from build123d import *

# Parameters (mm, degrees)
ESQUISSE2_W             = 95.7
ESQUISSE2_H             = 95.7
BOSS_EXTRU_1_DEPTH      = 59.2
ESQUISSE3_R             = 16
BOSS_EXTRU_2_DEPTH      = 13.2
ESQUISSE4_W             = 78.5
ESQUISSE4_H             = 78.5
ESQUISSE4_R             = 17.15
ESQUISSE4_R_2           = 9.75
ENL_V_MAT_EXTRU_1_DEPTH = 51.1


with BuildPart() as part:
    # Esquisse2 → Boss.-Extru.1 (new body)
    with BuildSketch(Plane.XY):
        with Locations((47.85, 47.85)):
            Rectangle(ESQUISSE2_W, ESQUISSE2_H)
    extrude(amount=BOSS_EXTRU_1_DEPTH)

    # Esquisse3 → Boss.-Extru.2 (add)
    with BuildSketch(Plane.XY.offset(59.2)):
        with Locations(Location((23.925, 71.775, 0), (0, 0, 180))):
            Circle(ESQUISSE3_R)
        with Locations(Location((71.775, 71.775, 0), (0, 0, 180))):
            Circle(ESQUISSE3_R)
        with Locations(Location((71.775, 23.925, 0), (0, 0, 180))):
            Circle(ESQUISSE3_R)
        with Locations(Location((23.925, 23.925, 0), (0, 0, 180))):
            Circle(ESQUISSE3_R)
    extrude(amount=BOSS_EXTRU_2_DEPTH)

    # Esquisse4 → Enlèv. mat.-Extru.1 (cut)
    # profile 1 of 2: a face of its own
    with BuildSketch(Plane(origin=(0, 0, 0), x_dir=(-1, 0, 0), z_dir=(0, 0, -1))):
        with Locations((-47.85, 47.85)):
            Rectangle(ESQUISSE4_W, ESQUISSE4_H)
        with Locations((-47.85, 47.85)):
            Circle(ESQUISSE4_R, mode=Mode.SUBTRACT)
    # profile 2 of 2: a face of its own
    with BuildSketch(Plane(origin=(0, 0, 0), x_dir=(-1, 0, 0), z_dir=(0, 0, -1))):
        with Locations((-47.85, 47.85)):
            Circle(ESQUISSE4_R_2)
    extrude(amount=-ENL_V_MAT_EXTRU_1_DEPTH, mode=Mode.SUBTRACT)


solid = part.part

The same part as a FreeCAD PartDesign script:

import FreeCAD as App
import Part
import Sketcher

V = App.Vector

doc = App.newDocument("Part")
body = doc.addObject("PartDesign::Body", "Body")

sketch1 = doc.addObject("Sketcher::SketchObject", "Sketch")
body.addObject(sketch1)
sketch1.AttachmentSupport = (doc.XY_Plane, [""])
sketch1.MapMode = "FlatFace"
sketch1.addGeometry(Part.LineSegment(V(0, 96, 0), V(0, 0, 0)), False)
sketch1.addGeometry(Part.LineSegment(V(0, 0, 0), V(96, 0, 0)), False)
sketch1.addGeometry(Part.LineSegment(V(96, 0, 0), V(96, 96, 0)), False)
sketch1.addGeometry(Part.LineSegment(V(96, 96, 0), V(0, 96, 0)), False)
sketch1.addConstraint(Sketcher.Constraint("Coincident", 0, 2, 1, 1))
sketch1.addConstraint(Sketcher.Constraint("Coincident", 1, 2, 2, 1))
sketch1.addConstraint(Sketcher.Constraint("Coincident", 2, 2, 3, 1))
sketch1.addConstraint(Sketcher.Constraint("Coincident", 3, 2, 0, 1))
sketch1.addConstraint(Sketcher.Constraint("Vertical", 0))
sketch1.addConstraint(Sketcher.Constraint("Horizontal", 1))
sketch1.addConstraint(Sketcher.Constraint("Vertical", 2))
sketch1.addConstraint(Sketcher.Constraint("Horizontal", 3))
sketch1.addConstraint(Sketcher.Constraint("Coincident", 0, 2, -1, 1))
sketch1.addConstraint(Sketcher.Constraint("Equal", 3, 0))
sketch1.addConstraint(Sketcher.Constraint("DistanceX", 1, 1, 1, 2, 95.7))
pad1 = doc.addObject("PartDesign::Pad", "Pad")
body.addObject(pad1)
pad1.Profile = sketch1
pad1.Length = 59.2

sketch2 = doc.addObject("Sketcher::SketchObject", "Sketch001")
body.addObject(sketch2)
sketch2.AttachmentSupport = (doc.XY_Plane, [""])
sketch2.MapMode = "FlatFace"
sketch2.AttachmentOffset = App.Placement(V(0, 0, 59.2), App.Rotation())
sketch2.addGeometry(Part.Circle(V(24, 72, 0), V(0, 0, 1), 16), False)
sketch2.addGeometry(Part.Circle(V(72, 72, 0), V(0, 0, 1), 16), False)
sketch2.addGeometry(Part.Circle(V(72, 24, 0), V(0, 0, 1), 16), False)
sketch2.addGeometry(Part.Circle(V(24, 24, 0), V(0, 0, 1), 16), False)
sketch2.addConstraint(Sketcher.Constraint("Equal", 0, 1))
sketch2.addConstraint(Sketcher.Constraint("Equal", 1, 2))
sketch2.addConstraint(Sketcher.Constraint("Equal", 2, 3))
sketch2.addConstraint(Sketcher.Constraint("Horizontal", 0, 3, 1, 3))
sketch2.addConstraint(Sketcher.Constraint("Horizontal", 2, 3, 3, 3))
sketch2.addConstraint(Sketcher.Constraint("Vertical", 1, 3, 2, 3))
sketch2.addConstraint(Sketcher.Constraint("Vertical", 0, 3, 3, 3))
sketch2.addConstraint(Sketcher.Constraint("Diameter", 0, 32.0))
sketch2.addConstraint(Sketcher.Constraint("DistanceX", 0, 3, 1, 3, 47.85))
sketch2.addConstraint(Sketcher.Constraint("DistanceY", 2, 3, 1, 3, 47.85))
sketch2.addConstraint(Sketcher.Constraint("DistanceX", -1, 1, 0, 3, 23.925))
sketch2.addConstraint(Sketcher.Constraint("DistanceY", -1, 1, 0, 3, 71.775))
pad2 = doc.addObject("PartDesign::Pad", "Pad001")
body.addObject(pad2)
pad2.Profile = sketch2
pad2.Length = 13.2

sketch3 = doc.addObject("Sketcher::SketchObject", "Sketch002")
body.addObject(sketch3)
sketch3.AttachmentSupport = (doc.XY_Plane, [""])
sketch3.MapMode = "FlatFace"
sketch3.addGeometry(Part.LineSegment(V(87, 87, 0), V(87, 9, 0)), False)
sketch3.addGeometry(Part.LineSegment(V(87, 9, 0), V(9, 9, 0)), False)
sketch3.addGeometry(Part.LineSegment(V(9, 9, 0), V(9, 87, 0)), False)
sketch3.addGeometry(Part.LineSegment(V(9, 87, 0), V(87, 87, 0)), False)
sketch3.addGeometry(Part.Circle(V(48, 48, 0), V(0, 0, 1), 17), False)
sketch3.addGeometry(Part.Circle(V(48, 48, 0), V(0, 0, 1), 10), False)
sketch3.addConstraint(Sketcher.Constraint("Coincident", 0, 2, 1, 1))
sketch3.addConstraint(Sketcher.Constraint("Coincident", 1, 2, 2, 1))
sketch3.addConstraint(Sketcher.Constraint("Coincident", 2, 2, 3, 1))
sketch3.addConstraint(Sketcher.Constraint("Coincident", 3, 2, 0, 1))
sketch3.addConstraint(Sketcher.Constraint("Vertical", 0))
sketch3.addConstraint(Sketcher.Constraint("Horizontal", 1))
sketch3.addConstraint(Sketcher.Constraint("Vertical", 2))
sketch3.addConstraint(Sketcher.Constraint("Horizontal", 3))
sketch3.addConstraint(Sketcher.Constraint("Coincident", 5, 3, 4, 3))
sketch3.addConstraint(Sketcher.Constraint("Equal", 3, 0))
sketch3.addConstraint(Sketcher.Constraint("Diameter", 4, 34.3))
sketch3.addConstraint(Sketcher.Constraint("Diameter", 5, 19.5))
sketch3.addConstraint(Sketcher.Constraint("DistanceX", 1, 2, 1, 1, 78.5))
sketch3.addConstraint(Sketcher.Constraint("DistanceX", -1, 1, 0, 2, 87.1))
sketch3.addConstraint(Sketcher.Constraint("DistanceY", -1, 1, 0, 2, 8.6))
sketch3.addConstraint(Sketcher.Constraint("DistanceX", -1, 1, 4, 3, 47.85))
sketch3.addConstraint(Sketcher.Constraint("DistanceY", -1, 1, 4, 3, 47.85))
pocket1 = doc.addObject("PartDesign::Pocket", "Pocket")
body.addObject(pocket1)
pocket1.Profile = sketch3
pocket1.Length = 51.1
pocket1.Reversed = True

doc.recompute()
